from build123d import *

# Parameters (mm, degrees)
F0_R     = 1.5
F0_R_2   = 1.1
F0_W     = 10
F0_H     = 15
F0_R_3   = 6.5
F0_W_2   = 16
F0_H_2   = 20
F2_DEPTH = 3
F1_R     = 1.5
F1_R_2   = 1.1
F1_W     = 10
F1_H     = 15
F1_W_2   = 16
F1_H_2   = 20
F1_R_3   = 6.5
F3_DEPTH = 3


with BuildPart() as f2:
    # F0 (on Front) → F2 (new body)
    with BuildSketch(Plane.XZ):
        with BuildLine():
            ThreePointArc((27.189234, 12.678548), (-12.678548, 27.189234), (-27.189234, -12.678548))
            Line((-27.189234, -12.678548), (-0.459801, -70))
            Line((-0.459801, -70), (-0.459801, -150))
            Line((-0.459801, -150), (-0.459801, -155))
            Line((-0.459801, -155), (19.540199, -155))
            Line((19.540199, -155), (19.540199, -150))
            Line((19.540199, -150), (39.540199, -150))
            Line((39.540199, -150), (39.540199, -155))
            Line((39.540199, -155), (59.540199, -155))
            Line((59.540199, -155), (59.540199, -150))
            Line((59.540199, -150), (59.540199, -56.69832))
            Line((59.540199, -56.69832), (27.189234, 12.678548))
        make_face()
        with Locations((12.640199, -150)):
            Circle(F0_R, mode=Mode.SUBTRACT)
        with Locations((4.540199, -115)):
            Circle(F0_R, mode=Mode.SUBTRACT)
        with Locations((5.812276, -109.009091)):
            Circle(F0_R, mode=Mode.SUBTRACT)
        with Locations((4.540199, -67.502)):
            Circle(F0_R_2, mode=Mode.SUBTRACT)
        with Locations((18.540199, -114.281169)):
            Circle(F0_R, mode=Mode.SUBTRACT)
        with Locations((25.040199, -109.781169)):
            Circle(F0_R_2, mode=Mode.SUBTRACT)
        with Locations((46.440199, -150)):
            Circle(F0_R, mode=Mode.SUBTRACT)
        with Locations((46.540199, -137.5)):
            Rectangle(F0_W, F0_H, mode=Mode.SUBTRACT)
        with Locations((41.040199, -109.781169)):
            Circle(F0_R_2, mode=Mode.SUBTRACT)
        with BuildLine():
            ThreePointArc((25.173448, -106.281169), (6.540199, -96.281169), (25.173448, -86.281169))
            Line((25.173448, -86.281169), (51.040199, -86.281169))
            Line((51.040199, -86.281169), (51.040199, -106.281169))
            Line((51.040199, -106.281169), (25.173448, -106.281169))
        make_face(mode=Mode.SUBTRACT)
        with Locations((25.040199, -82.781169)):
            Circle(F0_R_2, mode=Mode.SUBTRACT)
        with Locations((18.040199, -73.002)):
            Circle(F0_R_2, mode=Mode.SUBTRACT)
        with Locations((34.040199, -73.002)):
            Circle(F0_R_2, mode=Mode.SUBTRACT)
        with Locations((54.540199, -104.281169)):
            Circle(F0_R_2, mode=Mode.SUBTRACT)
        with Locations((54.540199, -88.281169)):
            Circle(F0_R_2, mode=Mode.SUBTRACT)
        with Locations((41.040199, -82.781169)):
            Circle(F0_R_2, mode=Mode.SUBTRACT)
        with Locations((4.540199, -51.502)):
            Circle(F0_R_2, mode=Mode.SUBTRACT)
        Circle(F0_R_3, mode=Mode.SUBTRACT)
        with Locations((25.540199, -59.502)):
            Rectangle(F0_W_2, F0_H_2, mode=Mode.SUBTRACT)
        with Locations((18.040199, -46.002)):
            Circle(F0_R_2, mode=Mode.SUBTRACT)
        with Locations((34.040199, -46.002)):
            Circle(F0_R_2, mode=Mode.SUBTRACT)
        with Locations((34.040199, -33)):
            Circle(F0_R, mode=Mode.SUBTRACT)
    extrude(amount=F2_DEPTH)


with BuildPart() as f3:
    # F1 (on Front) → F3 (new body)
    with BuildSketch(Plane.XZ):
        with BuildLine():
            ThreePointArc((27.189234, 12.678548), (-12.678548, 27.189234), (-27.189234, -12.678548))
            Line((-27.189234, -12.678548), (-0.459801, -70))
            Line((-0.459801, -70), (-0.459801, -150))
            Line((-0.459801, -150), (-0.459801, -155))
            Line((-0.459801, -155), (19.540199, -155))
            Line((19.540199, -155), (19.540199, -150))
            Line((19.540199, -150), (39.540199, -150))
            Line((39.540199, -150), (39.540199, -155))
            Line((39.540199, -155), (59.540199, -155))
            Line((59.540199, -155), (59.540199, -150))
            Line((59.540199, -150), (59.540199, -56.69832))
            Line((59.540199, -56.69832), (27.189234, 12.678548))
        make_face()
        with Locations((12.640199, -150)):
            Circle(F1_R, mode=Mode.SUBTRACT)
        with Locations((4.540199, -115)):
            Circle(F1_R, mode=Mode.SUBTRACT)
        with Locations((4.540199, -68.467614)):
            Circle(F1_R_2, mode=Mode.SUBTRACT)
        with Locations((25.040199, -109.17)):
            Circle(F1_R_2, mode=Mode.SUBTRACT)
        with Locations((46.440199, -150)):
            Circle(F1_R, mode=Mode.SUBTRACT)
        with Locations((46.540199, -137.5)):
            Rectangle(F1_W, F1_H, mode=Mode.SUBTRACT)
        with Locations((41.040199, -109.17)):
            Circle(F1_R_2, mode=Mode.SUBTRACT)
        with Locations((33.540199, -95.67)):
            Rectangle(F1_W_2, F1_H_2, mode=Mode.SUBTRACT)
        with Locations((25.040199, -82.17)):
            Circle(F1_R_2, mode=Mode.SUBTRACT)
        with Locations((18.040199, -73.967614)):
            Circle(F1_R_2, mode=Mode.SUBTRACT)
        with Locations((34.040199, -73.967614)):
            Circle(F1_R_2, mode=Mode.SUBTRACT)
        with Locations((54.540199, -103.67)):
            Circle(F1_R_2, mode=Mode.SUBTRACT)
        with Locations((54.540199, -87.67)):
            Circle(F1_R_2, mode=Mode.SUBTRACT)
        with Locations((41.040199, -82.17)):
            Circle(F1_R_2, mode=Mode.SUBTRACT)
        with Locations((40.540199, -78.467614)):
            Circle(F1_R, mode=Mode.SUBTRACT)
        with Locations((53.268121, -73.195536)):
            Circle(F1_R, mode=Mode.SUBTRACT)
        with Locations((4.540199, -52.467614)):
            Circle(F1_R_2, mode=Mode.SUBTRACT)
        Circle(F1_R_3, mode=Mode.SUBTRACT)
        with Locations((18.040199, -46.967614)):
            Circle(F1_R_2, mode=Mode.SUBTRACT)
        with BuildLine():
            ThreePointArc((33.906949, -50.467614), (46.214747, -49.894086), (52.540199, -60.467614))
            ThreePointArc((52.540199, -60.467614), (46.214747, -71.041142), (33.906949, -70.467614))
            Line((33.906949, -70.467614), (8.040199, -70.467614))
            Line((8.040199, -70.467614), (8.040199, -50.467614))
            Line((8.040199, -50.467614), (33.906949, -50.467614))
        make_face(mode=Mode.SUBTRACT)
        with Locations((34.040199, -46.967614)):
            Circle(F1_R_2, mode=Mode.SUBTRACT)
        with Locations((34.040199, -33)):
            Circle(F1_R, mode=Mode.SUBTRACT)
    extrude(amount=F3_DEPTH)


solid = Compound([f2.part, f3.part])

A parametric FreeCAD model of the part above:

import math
import FreeCAD as App
import Part
import Sketcher
from FreeCAD import Vector
Q = App.Units.Quantity

doc = App.newDocument("Part")
params = doc.addObject("Spreadsheet::Sheet", "Params")
for row, (alias, value) in enumerate([
    ("sketch1_diameter", "3 mm"),
    ("sketch1_diameter2", "13 mm"),
    ("sketch1_radius", "30 mm"),
    ("sketch1_radius2", "12 mm"),
    ("sketch1_diameter3", "2.2 mm"),
    ("pad1_length", "3 mm"),
    ("sketch2_diameter", "3 mm"),
    ("sketch2_diameter2", "13 mm"),
    ("sketch2_radius", "30 mm"),
    ("sketch2_radius2", "12.000001 mm"),
    ("sketch2_diameter3", "2.2 mm"),
    ("pad2_length", "3 mm"),
], start=1):
    params.set(f"A{row}", alias)
    params.set(f"B{row}", "=" + value)
    params.setAlias(f"B{row}", alias)

body = doc.addObject("PartDesign::Body", "Body")

# Sketch on XZ plane
sketch1 = body.newObject("Sketcher::SketchObject", "Sketch")
sketch1.AttachmentSupport = (doc.getObject("XZ_Plane"), [""])
sketch1.MapMode = "FlatFace"
sketch1.addGeometry([
    Part.ArcOfCircle(Part.Circle(Vector(0, 0, 0), Vector(0, 0, 1), 30), math.radians(25), math.radians(205)),  # 0
    Part.LineSegment(Vector(-27.189234, -12.678548, 0), Vector(-0.459801, -70, 0)),  # 1
    Part.LineSegment(Vector(-0.459801, -70, 0), Vector(-0.459801, -155, 0)),  # 2
    Part.LineSegment(Vector(-0.459801, -155, 0), Vector(19.540199, -155, 0)),  # 3
    Part.LineSegment(Vector(19.540199, -155, 0), Vector(19.540199, -150, 0)),  # 4
    Part.LineSegment(Vector(19.540199, -150, 0), Vector(39.540199, -150, 0)),  # 5
    Part.LineSegment(Vector(39.540199, -150, 0), Vector(39.540199, -155, 0)),  # 6
    Part.LineSegment(Vector(39.540199, -155, 0), Vector(59.540199, -155, 0)),  # 7
    Part.LineSegment(Vector(59.540199, -155, 0), Vector(59.540199, -56.69832, 0)),  # 8
    Part.LineSegment(Vector(59.540199, -56.69832, 0), Vector(27.189234, 12.678548, 0)),  # 9
    Part.Circle(Vector(4.540199, -115, 0), Vector(0, 0, 1), 1.5),  # 10
    Part.Circle(Vector(12.640199, -150, 0), Vector(0, 0, 1), 1.5),  # 11
    Part.Circle(Vector(18.540199, -114.281169, 0), Vector(0, 0, 1), 1.5),  # 12
    Part.Circle(Vector(5.812276, -109.009091, 0), Vector(0, 0, 1), 1.5),  # 13
    Part.Circle(Vector(18.040199, -73.002, 0), Vector(0, 0, 1), 1.1),  # 14
    Part.Circle(Vector(46.440199, -150, 0), Vector(0, 0, 1), 1.5),  # 15
    Part.LineSegment(Vector(51.540199, -145, 0), Vector(41.540199, -145, 0)),  # 16
    Part.LineSegment(Vector(41.540199, -145, 0), Vector(41.540199, -130, 0)),  # 17
    Part.LineSegment(Vector(41.540199, -130, 0), Vector(51.540199, -130, 0)),  # 18
    Part.LineSegment(Vector(51.540199, -130, 0), Vector(51.540199, -145, 0)),  # 19
    Part.Circle(Vector(25.040199, -109.781169, 0), Vector(0, 0, 1), 1.1),  # 20
    Part.LineSegment(Vector(51.040199, -106.281169, 0), Vector(25.173448, -106.281169, 0)),  # 21
    Part.ArcOfCircle(Part.Circle(Vector(18.540199, -96.281169, 0), Vector(0, 0, 1), 12), math.radians(56.442692), math.radians(303.557308)),  # 22
    Part.LineSegment(Vector(25.173448, -86.281169, 0), Vector(51.040199, -86.281169, 0)),  # 23
    Part.LineSegment(Vector(51.040199, -86.281169, 0), Vector(51.040199, -106.281169, 0)),  # 24
    Part.Circle(Vector(25.040199, -82.781169, 0), Vector(0, 0, 1), 1.1),  # 25
    Part.Circle(Vector(34.040199, -73.002, 0), Vector(0, 0, 1), 1.1),  # 26
    Part.Circle(Vector(41.040199, -109.781169, 0), Vector(0, 0, 1), 1.1),  # 27
    Part.Circle(Vector(54.540199, -104.281169, 0), Vector(0, 0, 1), 1.1),  # 28
    Part.Circle(Vector(41.040199, -82.781169, 0), Vector(0, 0, 1), 1.1),  # 29
    Part.Circle(Vector(54.540199, -88.281169, 0), Vector(0, 0, 1), 1.1),  # 30
    Part.Circle(Vector(4.540199, -67.502, 0), Vector(0, 0, 1), 1.1),  # 31
    Part.Circle(Vector(4.540199, -51.502, 0), Vector(0, 0, 1), 1.1),  # 32
    Part.Circle(Vector(18.040199, -46.002, 0), Vector(0, 0, 1), 1.1),  # 33
    Part.Circle(Vector(0, 0, 0), Vector(0, 0, 1), 6.5),  # 34
    Part.LineSegment(Vector(33.540199, -69.502, 0), Vector(17.540199, -69.502, 0)),  # 35
    Part.LineSegment(Vector(17.540199, -69.502, 0), Vector(17.540199, -49.502, 0)),  # 36
    Part.LineSegment(Vector(17.540199, -49.502, 0), Vector(33.540199, -49.502, 0)),  # 37
    Part.LineSegment(Vector(33.540199, -49.502, 0), Vector(33.540199, -69.502, 0)),  # 38
    Part.Circle(Vector(34.040199, -46.002, 0), Vector(0, 0, 1), 1.1),  # 39
    Part.Circle(Vector(34.040199, -33, 0), Vector(0, 0, 1), 1.5),  # 40
], False)
sketch1.addConstraint([
    Sketcher.Constraint("Tangent", 0, 2, 1, 1),
    Sketcher.Constraint("Coincident", 1, 2, 2, 1),
    Sketcher.Constraint("Coincident", 2, 2, 3, 1),
    Sketcher.Constraint("Coincident", 3, 2, 4, 1),
    Sketcher.Constraint("Coincident", 4, 2, 5, 1),
    Sketcher.Constraint("Coincident", 5, 2, 6, 1),
    Sketcher.Constraint("Coincident", 6, 2, 7, 1),
    Sketcher.Constraint("Coincident", 7, 2, 8, 1),
    Sketcher.Constraint("Coincident", 8, 2, 9, 1),
    Sketcher.Constraint("Tangent", 9, 2, 0, 1),
    Sketcher.Constraint("Coincident", 16, 2, 17, 1),
    Sketcher.Constraint("Coincident", 17, 2, 18, 1),
    Sketcher.Constraint("Coincident", 18, 2, 19, 1),
    Sketcher.Constraint("Coincident", 19, 2, 16, 1),
    Sketcher.Constraint("Coincident", 21, 2, 22, 2),
    Sketcher.Constraint("Coincident", 22, 1, 23, 1),
    Sketcher.Constraint("Coincident", 23, 2, 24, 1),
    Sketcher.Constraint("Coincident", 24, 2, 21, 1),
    Sketcher.Constraint("Coincident", 35, 2, 36, 1),
    Sketcher.Constraint("Coincident", 36, 2, 37, 1),
    Sketcher.Constraint("Coincident", 37, 2, 38, 1),
    Sketcher.Constraint("Coincident", 38, 2, 35, 1),
    Sketcher.Constraint("Vertical", 2),
    Sketcher.Constraint("Horizontal", 3),
    Sketcher.Constraint("Vertical", 4),
    Sketcher.Constraint("Horizontal", 5),
    Sketcher.Constraint("Vertical", 6),
    Sketcher.Constraint("Horizontal", 7),
    Sketcher.Constraint("Vertical", 8),
    Sketcher.Constraint("Horizontal", 16),
    Sketcher.Constraint("Vertical", 17),
    Sketcher.Constraint("Horizontal", 18),
    Sketcher.Constraint("Vertical", 19),
    Sketcher.Constraint("Horizontal", 21),
    Sketcher.Constraint("Horizontal", 23),
    Sketcher.Constraint("Vertical", 24),
    Sketcher.Constraint("Horizontal", 35),
    Sketcher.Constraint("Vertical", 36),
    Sketcher.Constraint("Horizontal", 37),
    Sketcher.Constraint("Vertical", 38),
    Sketcher.Constraint("Coincident", 0, 3, -1, 1),
    Sketcher.Constraint("Coincident", 34, 3, -1, 1),
    Sketcher.Constraint("Equal", 10, 11),
    Sketcher.Constraint("Equal", 11, 12),
    Sketcher.Constraint("Equal", 12, 13),
    Sketcher.Constraint("Equal", 13, 15),
    Sketcher.Constraint("Equal", 14, 20),
    Sketcher.Constraint("Equal", 20, 25),
    Sketcher.Constraint("Equal", 25, 26),
    Sketcher.Constraint("Equal", 26, 27),
    Sketcher.Constraint("Equal", 27, 28),
    Sketcher.Constraint("Equal", 28, 29),
    Sketcher.Constraint("Equal", 29, 30),
    Sketcher.Constraint("Equal", 30, 31),
    Sketcher.Constraint("Equal", 31, 32),
    Sketcher.Constraint("Equal", 32, 33),
    Sketcher.Constraint("Equal", 33, 39),
    Sketcher.Constraint("Equal", 15, 40),
    Sketcher.Constraint("Parallel", 1, 9),
    Sketcher.Constraint("Horizontal", 11, 3, 15, 3),
    Sketcher.Constraint("Horizontal", 14, 3, 26, 3),
    Sketcher.Constraint("Horizontal", 20, 3, 27, 3),
    Sketcher.Constraint("Horizontal", 25, 3, 29, 3),
    Sketcher.Constraint("Horizontal", 33, 3, 39, 3),
    Sketcher.Constraint("Horizontal", 15, 3, 4, 2),
    Sketcher.Constraint("Horizontal", 3, 2, 6, 2),
    Sketcher.Constraint("Vertical", 12, 3, 22, 3),
    Sketcher.Constraint("Vertical", 20, 3, 25, 3),
    Sketcher.Constraint("Vertical", 27, 3, 29, 3),
    Sketcher.Constraint("Vertical", 28, 3, 30, 3),
    Sketcher.Constraint("Vertical", 10, 3, 31, 3),
    Sketcher.Constraint("Vertical", 31, 3, 32, 3),
    Sketcher.Constraint("Vertical", 14, 3, 33, 3),
    Sketcher.Constraint("Vertical", 26, 3, 39, 3),
    Sketcher.Constraint("Vertical", 39, 3, 40, 3),
    Sketcher.Constraint("Vertical", 21, 2, 22, 1),
    Sketcher.Constraint("Equal", 3, 5),
    Sketcher.Constraint("Equal", 5, 7),
    Sketcher.Constraint("Equal", 7, 24),
    Sketcher.Constraint("Equal", 24, 36),
    Sketcher.Constraint("Diameter", 10, Q("3 mm")),
    Sketcher.Constraint("Diameter", 34, Q("13 mm")),
    Sketcher.Constraint("Radius", 0, Q("30 mm")),
    Sketcher.Constraint("Radius", 22, Q("12 mm")),
    Sketcher.Constraint("Diameter", 14, Q("2.2 mm")),
    Sketcher.Constraint("DistanceX", 3, 1, 3, 2, Q("20 mm")),
    Sketcher.Constraint("DistanceX", 16, 2, 16, 1, Q("10 mm")),
    Sketcher.Constraint("DistanceX", 35, 2, 35, 1, Q("16 mm")),
    Sketcher.Constraint("DistanceY", 2, 2, 2, 1, Q("85 mm")),
    Sketcher.Constraint("DistanceY", 4, 1, 4, 2, Q("5 mm")),
    Sketcher.Constraint("DistanceY", 17, 1, 17, 2, Q("15 mm")),
    Sketcher.Constraint("Angle", 1, Q("-64.999999 deg")),
    Sketcher.Constraint("DistanceY", 10, 3, -1, 1, Q("115 mm")),
    Sketcher.Constraint("DistanceY", 11, 3, -1, 1, Q("150 mm")),
    Sketcher.Constraint("DistanceY", 40, 3, -1, 1, Q("33 mm")),
    Sketcher.Constraint("DistanceY", 16, 2, -1, 1, Q("145 mm")),
    Sketcher.Constraint("DistanceX", 10, 3, 12, 3, Q("14 mm")),
    Sketcher.Constraint("DistanceX", 14, 3, 20, 3, Q("7 mm")),
    Sketcher.Constraint("DistanceY", 12, 3, 22, 3, Q("18 mm")),
    Sketcher.Constraint("DistanceY", 20, 3, 25, 3, Q("27 mm")),
    Sketcher.Constraint("DistanceX", 25, 3, 26, 3, Q("9 mm")),
    Sketcher.Constraint("DistanceX", 20, 3, 27, 3, Q("16 mm")),
    Sketcher.Constraint("DistanceX", 22, 3, 28, 3, Q("36 mm")),
    Sketcher.Constraint("DistanceY", 28, 3, 22, 3, Q("8 mm")),
    Sketcher.Constraint("DistanceY", 28, 3, 30, 3, Q("16 mm")),
    Sketcher.Constraint("DistanceY", 31, 3, 32, 3, Q("16 mm")),
    Sketcher.Constraint("DistanceY", 14, 3, 33, 3, Q("27 mm")),
    Sketcher.Constraint("DistanceX", 1, 2, 31, 3, Q("5 mm")),
    Sketcher.Constraint("DistanceX", 5, 2, 16, 2, Q("2 mm")),
    Sketcher.Constraint("DistanceX", 29, 3, 23, 2, Q("10 mm")),
    Sketcher.Constraint("DistanceX", 31, 3, 35, 2, Q("13 mm")),
    Sketcher.Constraint("DistanceY", 35, 2, 31, 3, Q("2 mm")),
    Sketcher.Constraint("DistanceX", 10, 3, 11, 3, Q("8.1 mm")),
    Sketcher.Constraint("DistanceX", 14, 3, 12, 3, Q("0.5 mm")),
    Sketcher.Constraint("DistanceX", 11, 3, 15, 3, Q("33.8 mm")),
    Sketcher.Constraint("DistanceY", 12, 3, 20, 3, Q("4.5 mm")),
    Sketcher.Constraint("DistanceY", 14, 3, 31, 3, Q("5.5 mm")),
    Sketcher.Constraint("DistanceY", 14, 3, -1, 1, Q("73.002 mm")),
    Sketcher.Constraint("DistanceY", 12, 3, -1, 1, Q("114.281169 mm")),
    Sketcher.Constraint("DistanceY", 13, 3, -1, 1, Q("109.009091 mm")),
    Sketcher.Constraint("DistanceX", 13, 3, 21, 2, Q("19.361172 mm")),
])
sketch1.setExpression("Constraints[80]", "Params.sketch1_diameter")
sketch1.setExpression("Constraints[81]", "Params.sketch1_diameter2")
sketch1.setExpression("Constraints[82]", "Params.sketch1_radius")
sketch1.setExpression("Constraints[83]", "Params.sketch1_radius2")
sketch1.setExpression("Constraints[84]", "Params.sketch1_diameter3")
pad1 = body.newObject("PartDesign::Pad", "Pad")
pad1.Profile = sketch1
pad1.setExpression("Length", "Params.pad1_length")
body2 = doc.addObject("PartDesign::Body", "Body001")

# Sketch on XZ plane
sketch2 = body2.newObject("Sketcher::SketchObject", "Sketch001")
sketch2.AttachmentSupport = (doc.getObject("XZ_Plane001"), [""])
sketch2.MapMode = "FlatFace"
sketch2.addGeometry([
    Part.ArcOfCircle(Part.Circle(Vector(0, 0, 0), Vector(0, 0, 1), 30), math.radians(25), math.radians(205)),  # 0
    Part.LineSegment(Vector(-27.189234, -12.678548, 0), Vector(-0.459801, -70, 0)),  # 1
    Part.LineSegment(Vector(-0.459801, -70, 0), Vector(-0.459801, -155, 0)),  # 2
    Part.LineSegment(Vector(-0.459801, -155, 0), Vector(19.540199, -155, 0)),  # 3
    Part.LineSegment(Vector(19.540199, -155, 0), Vector(19.540199, -150, 0)),  # 4
    Part.LineSegment(Vector(19.540199, -150, 0), Vector(39.540199, -150, 0)),  # 5
    Part.LineSegment(Vector(39.540199, -150, 0), Vector(39.540199, -155, 0)),  # 6
    Part.LineSegment(Vector(39.540199, -155, 0), Vector(59.540199, -155, 0)),  # 7
    Part.LineSegment(Vector(59.540199, -155, 0), Vector(59.540199, -56.69832, 0)),  # 8
    Part.LineSegment(Vector(59.540199, -56.69832, 0), Vector(27.189234, 12.678548, 0)),  # 9
    Part.Circle(Vector(4.540199, -115, 0), Vector(0, 0, 1), 1.5),  # 10
    Part.Circle(Vector(12.640199, -150, 0), Vector(0, 0, 1), 1.5),  # 11
    Part.Circle(Vector(18.040199, -73.967614, 0), Vector(0, 0, 1), 1.1),  # 12
    Part.Circle(Vector(46.440199, -150, 0), Vector(0, 0, 1), 1.5),  # 13
    Part.LineSegment(Vector(51.540199, -145, 0), Vector(41.540199, -145, 0)),  # 14
    Part.LineSegment(Vector(41.540199, -145, 0), Vector(41.540199, -130, 0)),  # 15
    Part.LineSegment(Vector(41.540199, -130, 0), Vector(51.540199, -130, 0)),  # 16
    Part.LineSegment(Vector(51.540199, -130, 0), Vector(51.540199, -145, 0)),  # 17
    Part.Circle(Vector(25.040199, -109.17, 0), Vector(0, 0, 1), 1.1),  # 18
    Part.LineSegment(Vector(41.540199, -105.67, 0), Vector(25.540199, -105.67, 0)),  # 19
    Part.LineSegment(Vector(25.540199, -105.67, 0), Vector(25.540199, -85.67, 0)),  # 20
    Part.LineSegment(Vector(25.540199, -85.67, 0), Vector(41.540199, -85.67, 0)),  # 21
    Part.LineSegment(Vector(41.540199, -85.67, 0), Vector(41.540199, -105.67, 0)),  # 22
    Part.Circle(Vector(25.040199, -82.17, 0), Vector(0, 0, 1), 1.1),  # 23
    Part.Circle(Vector(34.040199, -73.967614, 0), Vector(0, 0, 1), 1.1),  # 24
    Part.Circle(Vector(41.040199, -109.17, 0), Vector(0, 0, 1), 1.1),  # 25
    Part.Circle(Vector(54.540199, -103.67, 0), Vector(0, 0, 1), 1.1),  # 26
    Part.Circle(Vector(41.040199, -82.17, 0), Vector(0, 0, 1), 1.1),  # 27
    Part.Circle(Vector(40.540199, -78.467614, 0), Vector(0, 0, 1), 1.5),  # 28
    Part.Circle(Vector(54.540199, -87.67, 0), Vector(0, 0, 1), 1.1),  # 29
    Part.Circle(Vector(53.268121, -73.195536, 0), Vector(0, 0, 1), 1.5),  # 30
    Part.Circle(Vector(4.540199, -68.467614, 0), Vector(0, 0, 1), 1.1),  # 31
    Part.Circle(Vector(4.540199, -52.467614, 0), Vector(0, 0, 1), 1.1),  # 32
    Part.Circle(Vector(18.040199, -46.967614, 0), Vector(0, 0, 1), 1.1),  # 33
    Part.Circle(Vector(0, 0, 0), Vector(0, 0, 1), 6.5),  # 34
    Part.LineSegment(Vector(8.040199, -50.467614, 0), Vector(33.906949, -50.467614, 0)),  # 35
    Part.ArcOfCircle(Part.Circle(Vector(40.540198, -60.467615, 0), Vector(0, 0, 1), 12.000001), math.radians(0.000004), math.radians(123.557307)),  # 36
    Part.ArcOfCircle(Part.Circle(Vector(40.540198, -60.467613, 0), Vector(0, 0, 1), 12.000001), math.radians(-123.557307), math.radians(-0.000004)),  # 37
    Part.LineSegment(Vector(33.906949, -70.467614, 0), Vector(8.040199, -70.467614, 0)),  # 38
    Part.LineSegment(Vector(8.040199, -70.467614, 0), Vector(8.040199, -50.467614, 0)),  # 39
    Part.Circle(Vector(34.040199, -46.967614, 0), Vector(0, 0, 1), 1.1),  # 40
    Part.Circle(Vector(34.040199, -33, 0), Vector(0, 0, 1), 1.5),  # 41
], False)
sketch2.addConstraint([
    Sketcher.Constraint("Tangent", 0, 2, 1, 1),
    Sketcher.Constraint("Coincident", 1, 2, 2, 1),
    Sketcher.Constraint("Coincident", 2, 2, 3, 1),
    Sketcher.Constraint("Coincident", 3, 2, 4, 1),
    Sketcher.Constraint("Coincident", 4, 2, 5, 1),
    Sketcher.Constraint("Coincident", 5, 2, 6, 1),
    Sketcher.Constraint("Coincident", 6, 2, 7, 1),
    Sketcher.Constraint("Coincident", 7, 2, 8, 1),
    Sketcher.Constraint("Coincident", 8, 2, 9, 1),
    Sketcher.Constraint("Tangent", 9, 2, 0, 1),
    Sketcher.Constraint("Coincident", 14, 2, 15, 1),
    Sketcher.Constraint("Coincident", 15, 2, 16, 1),
    Sketcher.Constraint("Coincident", 16, 2, 17, 1),
    Sketcher.Constraint("Coincident", 17, 2, 14, 1),
    Sketcher.Constraint("Coincident", 19, 2, 20, 1),
    Sketcher.Constraint("Coincident", 20, 2, 21, 1),
    Sketcher.Constraint("Coincident", 21, 2, 22, 1),
    Sketcher.Constraint("Coincident", 22, 2, 19, 1),
    Sketcher.Constraint("Coincident", 35, 2, 36, 2),
    Sketcher.Constraint("Tangent", 36, 1, 37, 2),
    Sketcher.Constraint("Coincident", 37, 1, 38, 1),
    Sketcher.Constraint("Coincident", 38, 2, 39, 1),
    Sketcher.Constraint("Coincident", 39, 2, 35, 1),
    Sketcher.Constraint("Vertical", 2),
    Sketcher.Constraint("Horizontal", 3),
    Sketcher.Constraint("Vertical", 4),
    Sketcher.Constraint("Horizontal", 5),
    Sketcher.Constraint("Vertical", 6),
    Sketcher.Constraint("Horizontal", 7),
    Sketcher.Constraint("Vertical", 8),
    Sketcher.Constraint("Horizontal", 14),
    Sketcher.Constraint("Vertical", 15),
    Sketcher.Constraint("Horizontal", 16),
    Sketcher.Constraint("Vertical", 17),
    Sketcher.Constraint("Horizontal", 19),
    Sketcher.Constraint("Vertical", 20),
    Sketcher.Constraint("Horizontal", 21),
    Sketcher.Constraint("Vertical", 22),
    Sketcher.Constraint("Horizontal", 35),
    Sketcher.Constraint("Horizontal", 38),
    Sketcher.Constraint("Vertical", 39),
    Sketcher.Constraint("Coincident", 0, 3, -1, 1),
    Sketcher.Constraint("Coincident", 34, 3, -1, 1),
    Sketcher.Constraint("Equal", 10, 11),
    Sketcher.Constraint("Equal", 11, 13),
    Sketcher.Constraint("Equal", 12, 18),
    Sketcher.Constraint("Equal", 18, 23),
    Sketcher.Constraint("Equal", 23, 24),
    Sketcher.Constraint("Equal", 24, 25),
    Sketcher.Constraint("Equal", 25, 26),
    Sketcher.Constraint("Equal", 26, 27),
    Sketcher.Constraint("Equal", 13, 28),
    Sketcher.Constraint("Equal", 27, 29),
    Sketcher.Constraint("Equal", 28, 30),
    Sketcher.Constraint("Equal", 29, 31),
    Sketcher.Constraint("Equal", 31, 32),
    Sketcher.Constraint("Equal", 32, 33),
    Sketcher.Constraint("Equal", 36, 37),
    Sketcher.Constraint("Equal", 33, 40),
    Sketcher.Constraint("Equal", 30, 41),
    Sketcher.Constraint("Parallel", 1, 9),
    Sketcher.Constraint("Horizontal", 11, 3, 13, 3),
    Sketcher.Constraint("Horizontal", 12, 3, 24, 3),
    Sketcher.Constraint("Horizontal", 18, 3, 25, 3),
    Sketcher.Constraint("Horizontal", 23, 3, 27, 3),
    Sketcher.Constraint("Horizontal", 33, 3, 40, 3),
    Sketcher.Constraint("Horizontal", 13, 3, 4, 2),
    Sketcher.Constraint("Horizontal", 3, 2, 6, 2),
    Sketcher.Constraint("Horizontal", 37, 3, 36, 1),
    Sketcher.Constraint("Vertical", 18, 3, 23, 3),
    Sketcher.Constraint("Vertical", 25, 3, 27, 3),
    Sketcher.Constraint("Vertical", 26, 3, 29, 3),
    Sketcher.Constraint("Vertical", 10, 3, 31, 3),
    Sketcher.Constraint("Vertical", 31, 3, 32, 3),
    Sketcher.Constraint("Vertical", 12, 3, 33, 3),
    Sketcher.Constraint("Vertical", 28, 3, 36, 3),
    Sketcher.Constraint("Vertical", 24, 3, 40, 3),
    Sketcher.Constraint("Vertical", 40, 3, 41, 3),
    Sketcher.Constraint("Vertical", 15, 2, 21, 2),
    Sketcher.Constraint("Vertical", 35, 2, 37, 1),
    Sketcher.Constraint("Equal", 3, 5),
    Sketcher.Constraint("Equal", 5, 7),
    Sketcher.Constraint("Equal", 7, 20),
    Sketcher.Constraint("Equal", 22, 39),
    Sketcher.Constraint("Diameter", 10, Q("3 mm")),
    Sketcher.Constraint("Diameter", 34, Q("13 mm")),
    Sketcher.Constraint("Radius", 0, Q("30 mm")),
    Sketcher.Constraint("Radius", 36, Q("12.000001 mm")),
    Sketcher.Constraint("Diameter", 12, Q("2.2 mm")),
    Sketcher.Constraint("DistanceX", 3, 1, 3, 2, Q("20 mm")),
    Sketcher.Constraint("DistanceX", 14, 2, 14, 1, Q("10 mm")),
    Sketcher.Constraint("DistanceX", 19, 2, 19, 1, Q("16 mm")),
    Sketcher.Constraint("DistanceY", 2, 2, 2, 1, Q("85 mm")),
    Sketcher.Constraint("DistanceY", 4, 1, 4, 2, Q("5 mm")),
    Sketcher.Constraint("DistanceY", 15, 1, 15, 2, Q("15 mm")),
    Sketcher.Constraint("Angle", 1, Q("-64.999999 deg")),
    Sketcher.Constraint("DistanceY", 10, 3, -1, 1, Q("115 mm")),
    Sketcher.Constraint("DistanceY", 11, 3, -1, 1, Q("150 mm")),
    Sketcher.Constraint("DistanceY", 41, 3, -1, 1, Q("33 mm")),
    Sketcher.Constraint("DistanceY", 14, 2, -1, 1, Q("145 mm")),
    Sketcher.Constraint("DistanceX", 12, 3, 18, 3, Q("7 mm")),
    Sketcher.Constraint("DistanceY", 18, 3, 23, 3, Q("27 mm")),
    Sketcher.Constraint("DistanceX", 23, 3, 24, 3, Q("9 mm")),
    Sketcher.Constraint("DistanceX", 18, 3, 25, 3, Q("16 mm")),
    Sketcher.Constraint("DistanceX", 28, 3, 26, 3, Q("14 mm")),
    Sketcher.Constraint("DistanceY", 26, 3, 29, 3, Q("16 mm")),
    Sketcher.Constraint("DistanceX", 31, 3, 28, 3, Q("36 mm")),
    Sketcher.Constraint("DistanceY", 28, 3, 31, 3, Q("10 mm")),
    Sketcher.Constraint("DistanceY", 31, 3, 32, 3, Q("16 mm")),
    Sketcher.Constraint("DistanceY", 12, 3, 33, 3, Q("27 mm")),
    Sketcher.Constraint("DistanceY", 28, 3, 36, 3, Q("17.999999 mm")),
    Sketcher.Constraint("DistanceX", 1, 2, 31, 3, Q("5 mm")),
    Sketcher.Constraint("DistanceX", 5, 2, 14, 2, Q("2 mm")),
    Sketcher.Constraint("DistanceY", 29, 3, 21, 2, Q("2 mm")),
    Sketcher.Constraint("DistanceX", 38, 2, 12, 3, Q("10 mm")),
    Sketcher.Constraint("DistanceX", 10, 3, 11, 3, Q("8.1 mm")),
    Sketcher.Constraint("DistanceX", 10, 3, 12, 3, Q("13.5 mm")),
    Sketcher.Constraint("DistanceX", 11, 3, 13, 3, Q("33.8 mm")),
    Sketcher.Constraint("DistanceY", 25, 3, 26, 3, Q("5.5 mm")),
    Sketcher.Constraint("DistanceY", 28, 3, 24, 3, Q("4.5 mm")),
    Sketcher.Constraint("DistanceY", 18, 3, -1, 1, Q("109.17 mm")),
    Sketcher.Constraint("DistanceX", -1, 1, 30, 3, Q("53.268121 mm")),
    Sketcher.Constraint("DistanceY", 30, 3, 36, 3, Q("12.727921 mm")),
    Sketcher.Constraint("DistanceY", 40, 3, 9, 2, Q("59.646162 mm")),
])
sketch2.setExpression("Constraints[84]", "Params.sketch2_diameter")
sketch2.setExpression("Constraints[85]", "Params.sketch2_diameter2")
sketch2.setExpression("Constraints[86]", "Params.sketch2_radius")
sketch2.setExpression("Constraints[87]", "Params.sketch2_radius2")
sketch2.setExpression("Constraints[88]", "Params.sketch2_diameter3")
pad2 = body2.newObject("PartDesign::Pad", "Pad001")
pad2.Profile = sketch2
pad2.setExpression("Length", "Params.pad2_length")

doc.recompute()
